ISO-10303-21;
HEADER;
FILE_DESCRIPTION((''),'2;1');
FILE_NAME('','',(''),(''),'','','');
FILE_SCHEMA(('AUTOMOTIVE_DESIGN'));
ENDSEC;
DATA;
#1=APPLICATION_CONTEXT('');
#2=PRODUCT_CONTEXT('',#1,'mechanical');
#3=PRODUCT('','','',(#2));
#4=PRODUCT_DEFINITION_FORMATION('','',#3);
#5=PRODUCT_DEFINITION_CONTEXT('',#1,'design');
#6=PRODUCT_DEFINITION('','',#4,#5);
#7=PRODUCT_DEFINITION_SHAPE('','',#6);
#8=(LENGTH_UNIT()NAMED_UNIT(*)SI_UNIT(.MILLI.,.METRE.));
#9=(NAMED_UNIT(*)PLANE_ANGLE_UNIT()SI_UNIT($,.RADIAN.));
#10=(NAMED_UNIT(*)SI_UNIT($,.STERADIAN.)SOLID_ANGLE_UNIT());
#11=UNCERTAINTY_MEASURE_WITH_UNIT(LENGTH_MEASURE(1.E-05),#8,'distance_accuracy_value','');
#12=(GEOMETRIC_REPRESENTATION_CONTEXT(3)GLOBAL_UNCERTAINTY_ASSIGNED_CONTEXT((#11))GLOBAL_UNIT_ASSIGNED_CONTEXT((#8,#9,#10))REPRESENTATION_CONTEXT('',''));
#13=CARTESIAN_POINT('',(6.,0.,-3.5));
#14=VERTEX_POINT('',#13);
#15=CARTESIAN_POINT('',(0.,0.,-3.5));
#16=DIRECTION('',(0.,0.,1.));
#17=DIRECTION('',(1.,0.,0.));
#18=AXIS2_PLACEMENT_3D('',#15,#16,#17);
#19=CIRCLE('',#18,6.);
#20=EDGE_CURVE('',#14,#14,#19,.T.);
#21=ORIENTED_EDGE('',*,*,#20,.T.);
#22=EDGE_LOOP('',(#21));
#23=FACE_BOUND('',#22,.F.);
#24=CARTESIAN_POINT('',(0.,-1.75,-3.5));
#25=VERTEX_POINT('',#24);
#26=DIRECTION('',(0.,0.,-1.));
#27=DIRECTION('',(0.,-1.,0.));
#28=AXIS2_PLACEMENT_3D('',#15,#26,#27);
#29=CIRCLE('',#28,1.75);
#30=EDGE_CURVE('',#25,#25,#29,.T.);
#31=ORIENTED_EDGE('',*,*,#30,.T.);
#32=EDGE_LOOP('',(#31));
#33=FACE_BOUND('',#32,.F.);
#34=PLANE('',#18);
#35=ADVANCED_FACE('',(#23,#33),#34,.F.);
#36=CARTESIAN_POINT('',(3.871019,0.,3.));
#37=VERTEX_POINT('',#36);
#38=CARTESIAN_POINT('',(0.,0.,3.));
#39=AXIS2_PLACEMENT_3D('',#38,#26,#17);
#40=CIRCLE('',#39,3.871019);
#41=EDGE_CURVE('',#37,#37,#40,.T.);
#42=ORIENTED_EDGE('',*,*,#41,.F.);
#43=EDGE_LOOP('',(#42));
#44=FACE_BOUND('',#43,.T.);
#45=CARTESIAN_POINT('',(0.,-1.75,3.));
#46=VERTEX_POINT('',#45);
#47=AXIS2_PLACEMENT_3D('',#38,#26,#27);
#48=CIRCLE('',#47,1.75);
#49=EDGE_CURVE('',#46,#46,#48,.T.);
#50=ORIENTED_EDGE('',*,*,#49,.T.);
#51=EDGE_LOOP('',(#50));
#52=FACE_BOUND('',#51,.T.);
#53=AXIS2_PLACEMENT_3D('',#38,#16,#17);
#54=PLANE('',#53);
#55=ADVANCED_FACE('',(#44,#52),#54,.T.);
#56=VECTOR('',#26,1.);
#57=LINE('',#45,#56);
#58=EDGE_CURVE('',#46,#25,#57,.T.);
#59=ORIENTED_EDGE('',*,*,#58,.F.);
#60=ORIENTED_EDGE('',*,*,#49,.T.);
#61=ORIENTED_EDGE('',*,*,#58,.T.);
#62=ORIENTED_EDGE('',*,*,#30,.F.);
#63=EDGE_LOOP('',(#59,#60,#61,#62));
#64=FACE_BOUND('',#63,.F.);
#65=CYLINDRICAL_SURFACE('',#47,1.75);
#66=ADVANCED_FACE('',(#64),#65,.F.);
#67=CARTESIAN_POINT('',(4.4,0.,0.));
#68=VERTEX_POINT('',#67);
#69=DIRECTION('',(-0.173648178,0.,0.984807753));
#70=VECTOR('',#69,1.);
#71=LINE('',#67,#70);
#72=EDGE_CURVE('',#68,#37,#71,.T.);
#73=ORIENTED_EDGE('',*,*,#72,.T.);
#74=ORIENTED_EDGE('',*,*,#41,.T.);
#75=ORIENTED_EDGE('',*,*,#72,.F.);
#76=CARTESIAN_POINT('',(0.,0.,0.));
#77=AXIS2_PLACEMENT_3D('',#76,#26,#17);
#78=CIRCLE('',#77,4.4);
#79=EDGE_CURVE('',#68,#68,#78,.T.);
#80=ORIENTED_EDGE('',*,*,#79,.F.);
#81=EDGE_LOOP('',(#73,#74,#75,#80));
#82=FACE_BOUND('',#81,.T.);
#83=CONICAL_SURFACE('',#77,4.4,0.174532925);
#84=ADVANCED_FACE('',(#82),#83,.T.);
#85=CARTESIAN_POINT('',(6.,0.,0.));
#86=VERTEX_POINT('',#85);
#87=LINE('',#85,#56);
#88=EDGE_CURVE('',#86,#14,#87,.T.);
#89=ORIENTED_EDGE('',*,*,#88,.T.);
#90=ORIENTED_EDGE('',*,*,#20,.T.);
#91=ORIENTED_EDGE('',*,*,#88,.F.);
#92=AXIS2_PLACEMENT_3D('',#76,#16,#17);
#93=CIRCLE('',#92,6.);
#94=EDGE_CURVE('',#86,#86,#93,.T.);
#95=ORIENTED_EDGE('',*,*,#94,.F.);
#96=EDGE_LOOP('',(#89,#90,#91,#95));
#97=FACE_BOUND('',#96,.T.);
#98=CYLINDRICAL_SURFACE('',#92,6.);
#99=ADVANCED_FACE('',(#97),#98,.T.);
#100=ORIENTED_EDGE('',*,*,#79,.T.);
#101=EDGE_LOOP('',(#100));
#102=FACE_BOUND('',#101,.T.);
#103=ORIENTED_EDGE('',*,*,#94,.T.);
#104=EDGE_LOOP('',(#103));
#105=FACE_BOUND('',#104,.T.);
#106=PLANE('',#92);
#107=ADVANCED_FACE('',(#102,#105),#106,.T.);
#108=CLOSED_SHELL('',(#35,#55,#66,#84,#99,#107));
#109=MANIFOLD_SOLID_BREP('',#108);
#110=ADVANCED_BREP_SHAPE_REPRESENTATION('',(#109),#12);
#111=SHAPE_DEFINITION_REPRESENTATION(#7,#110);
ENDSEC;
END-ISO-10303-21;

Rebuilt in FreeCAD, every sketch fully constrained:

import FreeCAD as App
import Part
import Sketcher

doc = App.newDocument("Part")
body = doc.addObject("PartDesign::Body", "Body")

sketch1 = body.newObject("Sketcher::SketchObject", "Sketch")
sketch1.AttachmentSupport = (doc.getObject("XY_Plane"), [""])
sketch1.MapMode = "FlatFace"
sketch1.addGeometry(Part.Circle(App.Vector(0, 0, 0), App.Vector(0, 0, 1), 6), False)
sketch1.addConstraint([
    Sketcher.Constraint("Coincident", 0, 3, -1, 1),
    Sketcher.Constraint("Diameter", 0, 12.0),
])
pad1 = body.newObject("PartDesign::Pad", "Pad")
pad1.Profile = sketch1
pad1.Length = 3.5
pad1.Reversed = True

sketch2 = body.newObject("Sketcher::SketchObject", "Sketch001")
sketch2.AttachmentSupport = (doc.getObject("XY_Plane"), [""])
sketch2.MapMode = "FlatFace"
sketch2.addGeometry(Part.Circle(App.Vector(0, 0, 0), App.Vector(0, 0, 1), 4.4), False)
sketch2.addConstraint([
    Sketcher.Constraint("Coincident", 0, 3, -1, 1),
    Sketcher.Constraint("Diameter", 0, 8.8),
])
pad2 = body.newObject("PartDesign::Pad", "Pad001")
pad2.Profile = sketch2
pad2.Length = 3
pad2.TaperAngle = -10

sketch3 = body.newObject("Sketcher::SketchObject", "Sketch002")
sketch3.AttachmentSupport = (doc.getObject("XY_Plane"), [""])
sketch3.MapMode = "FlatFace"
sketch3.AttachmentOffset = App.Placement(App.Vector(0, 0, 3), App.Rotation())
sketch3.addGeometry(Part.Circle(App.Vector(0, 0, 0), App.Vector(0, 0, 1), 1.8), False)
sketch3.addConstraint([
    Sketcher.Constraint("Coincident", 0, 3, -1, 1),
    Sketcher.Constraint("Diameter", 0, 3.5),
])
doc.recompute()
hole = body.newObject("PartDesign::Hole", "Hole")
hole.Profile = sketch3
hole.ThreadType = "None"
hole.Diameter = 3.5
hole.DepthType = "ThroughAll"

doc.recompute()
